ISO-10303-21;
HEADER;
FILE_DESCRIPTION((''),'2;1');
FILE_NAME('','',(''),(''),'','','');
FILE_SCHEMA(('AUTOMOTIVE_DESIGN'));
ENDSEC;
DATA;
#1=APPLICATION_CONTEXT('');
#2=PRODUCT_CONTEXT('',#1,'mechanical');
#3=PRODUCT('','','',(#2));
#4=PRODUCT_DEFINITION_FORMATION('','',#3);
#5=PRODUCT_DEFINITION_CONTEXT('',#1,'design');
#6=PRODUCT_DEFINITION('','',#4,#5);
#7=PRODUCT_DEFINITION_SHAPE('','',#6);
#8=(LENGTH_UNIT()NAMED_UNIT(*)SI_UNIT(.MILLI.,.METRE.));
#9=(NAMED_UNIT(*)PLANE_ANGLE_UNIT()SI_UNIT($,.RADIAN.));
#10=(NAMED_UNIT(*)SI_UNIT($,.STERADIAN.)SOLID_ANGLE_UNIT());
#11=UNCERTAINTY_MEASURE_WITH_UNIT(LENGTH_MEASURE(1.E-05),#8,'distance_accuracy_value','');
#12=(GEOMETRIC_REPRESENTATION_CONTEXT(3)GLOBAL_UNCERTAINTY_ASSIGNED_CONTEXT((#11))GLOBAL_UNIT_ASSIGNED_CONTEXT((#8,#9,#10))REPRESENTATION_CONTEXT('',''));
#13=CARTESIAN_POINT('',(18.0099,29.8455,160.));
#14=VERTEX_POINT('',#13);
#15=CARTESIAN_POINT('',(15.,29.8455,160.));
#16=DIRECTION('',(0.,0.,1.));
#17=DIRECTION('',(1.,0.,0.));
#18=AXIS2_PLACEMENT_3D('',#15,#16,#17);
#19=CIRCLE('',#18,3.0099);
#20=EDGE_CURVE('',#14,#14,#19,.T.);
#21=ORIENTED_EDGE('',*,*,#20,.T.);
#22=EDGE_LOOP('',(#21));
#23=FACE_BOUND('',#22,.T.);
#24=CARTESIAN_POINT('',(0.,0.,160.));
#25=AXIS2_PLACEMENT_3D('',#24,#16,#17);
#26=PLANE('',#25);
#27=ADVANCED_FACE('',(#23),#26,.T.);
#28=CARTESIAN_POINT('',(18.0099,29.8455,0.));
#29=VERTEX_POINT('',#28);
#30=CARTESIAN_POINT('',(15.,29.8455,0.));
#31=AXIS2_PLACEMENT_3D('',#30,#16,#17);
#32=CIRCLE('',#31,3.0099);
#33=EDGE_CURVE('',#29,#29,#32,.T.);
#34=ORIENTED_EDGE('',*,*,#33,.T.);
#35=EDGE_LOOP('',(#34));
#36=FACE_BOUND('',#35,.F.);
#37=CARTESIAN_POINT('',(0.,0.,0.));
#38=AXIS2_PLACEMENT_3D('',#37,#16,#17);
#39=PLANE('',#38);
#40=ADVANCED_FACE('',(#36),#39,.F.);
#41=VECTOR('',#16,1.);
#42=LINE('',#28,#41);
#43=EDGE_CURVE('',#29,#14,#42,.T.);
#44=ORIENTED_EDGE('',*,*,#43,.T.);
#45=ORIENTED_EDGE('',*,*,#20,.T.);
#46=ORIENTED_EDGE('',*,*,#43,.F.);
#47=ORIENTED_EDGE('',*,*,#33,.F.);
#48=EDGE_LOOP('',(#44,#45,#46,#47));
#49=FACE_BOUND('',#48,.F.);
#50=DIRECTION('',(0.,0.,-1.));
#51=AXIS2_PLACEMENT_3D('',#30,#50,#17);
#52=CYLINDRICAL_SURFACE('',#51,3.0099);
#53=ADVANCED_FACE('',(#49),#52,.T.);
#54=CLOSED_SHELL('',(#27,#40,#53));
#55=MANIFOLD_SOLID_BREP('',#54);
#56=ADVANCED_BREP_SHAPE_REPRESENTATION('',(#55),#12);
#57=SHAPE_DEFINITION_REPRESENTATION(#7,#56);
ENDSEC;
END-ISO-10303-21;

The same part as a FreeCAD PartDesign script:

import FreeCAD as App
import Part
import Sketcher

doc = App.newDocument("Part")
body = doc.addObject("PartDesign::Body", "Body")

# Sketch on XY plane
sketch1 = body.newObject("Sketcher::SketchObject", "Sketch")
sketch1.AttachmentSupport = (doc.getObject("XY_Plane"), [""])
sketch1.MapMode = "FlatFace"
sketch1.addGeometry(Part.Circle(App.Vector(15, 29.8, 0), App.Vector(0, 0, 1), 3), False)
sketch1.addConstraint([
    Sketcher.Constraint("DistanceX", -1, 1, 0, 3, 15.0),
    Sketcher.Constraint("Diameter", 0, 6.0198),
    Sketcher.Constraint("DistanceY", -1, 1, 0, 3, 29.8455),
])
pad1 = body.newObject("PartDesign::Pad", "Pad")
pad1.Profile = sketch1
pad1.Length = 160

doc.recompute()
